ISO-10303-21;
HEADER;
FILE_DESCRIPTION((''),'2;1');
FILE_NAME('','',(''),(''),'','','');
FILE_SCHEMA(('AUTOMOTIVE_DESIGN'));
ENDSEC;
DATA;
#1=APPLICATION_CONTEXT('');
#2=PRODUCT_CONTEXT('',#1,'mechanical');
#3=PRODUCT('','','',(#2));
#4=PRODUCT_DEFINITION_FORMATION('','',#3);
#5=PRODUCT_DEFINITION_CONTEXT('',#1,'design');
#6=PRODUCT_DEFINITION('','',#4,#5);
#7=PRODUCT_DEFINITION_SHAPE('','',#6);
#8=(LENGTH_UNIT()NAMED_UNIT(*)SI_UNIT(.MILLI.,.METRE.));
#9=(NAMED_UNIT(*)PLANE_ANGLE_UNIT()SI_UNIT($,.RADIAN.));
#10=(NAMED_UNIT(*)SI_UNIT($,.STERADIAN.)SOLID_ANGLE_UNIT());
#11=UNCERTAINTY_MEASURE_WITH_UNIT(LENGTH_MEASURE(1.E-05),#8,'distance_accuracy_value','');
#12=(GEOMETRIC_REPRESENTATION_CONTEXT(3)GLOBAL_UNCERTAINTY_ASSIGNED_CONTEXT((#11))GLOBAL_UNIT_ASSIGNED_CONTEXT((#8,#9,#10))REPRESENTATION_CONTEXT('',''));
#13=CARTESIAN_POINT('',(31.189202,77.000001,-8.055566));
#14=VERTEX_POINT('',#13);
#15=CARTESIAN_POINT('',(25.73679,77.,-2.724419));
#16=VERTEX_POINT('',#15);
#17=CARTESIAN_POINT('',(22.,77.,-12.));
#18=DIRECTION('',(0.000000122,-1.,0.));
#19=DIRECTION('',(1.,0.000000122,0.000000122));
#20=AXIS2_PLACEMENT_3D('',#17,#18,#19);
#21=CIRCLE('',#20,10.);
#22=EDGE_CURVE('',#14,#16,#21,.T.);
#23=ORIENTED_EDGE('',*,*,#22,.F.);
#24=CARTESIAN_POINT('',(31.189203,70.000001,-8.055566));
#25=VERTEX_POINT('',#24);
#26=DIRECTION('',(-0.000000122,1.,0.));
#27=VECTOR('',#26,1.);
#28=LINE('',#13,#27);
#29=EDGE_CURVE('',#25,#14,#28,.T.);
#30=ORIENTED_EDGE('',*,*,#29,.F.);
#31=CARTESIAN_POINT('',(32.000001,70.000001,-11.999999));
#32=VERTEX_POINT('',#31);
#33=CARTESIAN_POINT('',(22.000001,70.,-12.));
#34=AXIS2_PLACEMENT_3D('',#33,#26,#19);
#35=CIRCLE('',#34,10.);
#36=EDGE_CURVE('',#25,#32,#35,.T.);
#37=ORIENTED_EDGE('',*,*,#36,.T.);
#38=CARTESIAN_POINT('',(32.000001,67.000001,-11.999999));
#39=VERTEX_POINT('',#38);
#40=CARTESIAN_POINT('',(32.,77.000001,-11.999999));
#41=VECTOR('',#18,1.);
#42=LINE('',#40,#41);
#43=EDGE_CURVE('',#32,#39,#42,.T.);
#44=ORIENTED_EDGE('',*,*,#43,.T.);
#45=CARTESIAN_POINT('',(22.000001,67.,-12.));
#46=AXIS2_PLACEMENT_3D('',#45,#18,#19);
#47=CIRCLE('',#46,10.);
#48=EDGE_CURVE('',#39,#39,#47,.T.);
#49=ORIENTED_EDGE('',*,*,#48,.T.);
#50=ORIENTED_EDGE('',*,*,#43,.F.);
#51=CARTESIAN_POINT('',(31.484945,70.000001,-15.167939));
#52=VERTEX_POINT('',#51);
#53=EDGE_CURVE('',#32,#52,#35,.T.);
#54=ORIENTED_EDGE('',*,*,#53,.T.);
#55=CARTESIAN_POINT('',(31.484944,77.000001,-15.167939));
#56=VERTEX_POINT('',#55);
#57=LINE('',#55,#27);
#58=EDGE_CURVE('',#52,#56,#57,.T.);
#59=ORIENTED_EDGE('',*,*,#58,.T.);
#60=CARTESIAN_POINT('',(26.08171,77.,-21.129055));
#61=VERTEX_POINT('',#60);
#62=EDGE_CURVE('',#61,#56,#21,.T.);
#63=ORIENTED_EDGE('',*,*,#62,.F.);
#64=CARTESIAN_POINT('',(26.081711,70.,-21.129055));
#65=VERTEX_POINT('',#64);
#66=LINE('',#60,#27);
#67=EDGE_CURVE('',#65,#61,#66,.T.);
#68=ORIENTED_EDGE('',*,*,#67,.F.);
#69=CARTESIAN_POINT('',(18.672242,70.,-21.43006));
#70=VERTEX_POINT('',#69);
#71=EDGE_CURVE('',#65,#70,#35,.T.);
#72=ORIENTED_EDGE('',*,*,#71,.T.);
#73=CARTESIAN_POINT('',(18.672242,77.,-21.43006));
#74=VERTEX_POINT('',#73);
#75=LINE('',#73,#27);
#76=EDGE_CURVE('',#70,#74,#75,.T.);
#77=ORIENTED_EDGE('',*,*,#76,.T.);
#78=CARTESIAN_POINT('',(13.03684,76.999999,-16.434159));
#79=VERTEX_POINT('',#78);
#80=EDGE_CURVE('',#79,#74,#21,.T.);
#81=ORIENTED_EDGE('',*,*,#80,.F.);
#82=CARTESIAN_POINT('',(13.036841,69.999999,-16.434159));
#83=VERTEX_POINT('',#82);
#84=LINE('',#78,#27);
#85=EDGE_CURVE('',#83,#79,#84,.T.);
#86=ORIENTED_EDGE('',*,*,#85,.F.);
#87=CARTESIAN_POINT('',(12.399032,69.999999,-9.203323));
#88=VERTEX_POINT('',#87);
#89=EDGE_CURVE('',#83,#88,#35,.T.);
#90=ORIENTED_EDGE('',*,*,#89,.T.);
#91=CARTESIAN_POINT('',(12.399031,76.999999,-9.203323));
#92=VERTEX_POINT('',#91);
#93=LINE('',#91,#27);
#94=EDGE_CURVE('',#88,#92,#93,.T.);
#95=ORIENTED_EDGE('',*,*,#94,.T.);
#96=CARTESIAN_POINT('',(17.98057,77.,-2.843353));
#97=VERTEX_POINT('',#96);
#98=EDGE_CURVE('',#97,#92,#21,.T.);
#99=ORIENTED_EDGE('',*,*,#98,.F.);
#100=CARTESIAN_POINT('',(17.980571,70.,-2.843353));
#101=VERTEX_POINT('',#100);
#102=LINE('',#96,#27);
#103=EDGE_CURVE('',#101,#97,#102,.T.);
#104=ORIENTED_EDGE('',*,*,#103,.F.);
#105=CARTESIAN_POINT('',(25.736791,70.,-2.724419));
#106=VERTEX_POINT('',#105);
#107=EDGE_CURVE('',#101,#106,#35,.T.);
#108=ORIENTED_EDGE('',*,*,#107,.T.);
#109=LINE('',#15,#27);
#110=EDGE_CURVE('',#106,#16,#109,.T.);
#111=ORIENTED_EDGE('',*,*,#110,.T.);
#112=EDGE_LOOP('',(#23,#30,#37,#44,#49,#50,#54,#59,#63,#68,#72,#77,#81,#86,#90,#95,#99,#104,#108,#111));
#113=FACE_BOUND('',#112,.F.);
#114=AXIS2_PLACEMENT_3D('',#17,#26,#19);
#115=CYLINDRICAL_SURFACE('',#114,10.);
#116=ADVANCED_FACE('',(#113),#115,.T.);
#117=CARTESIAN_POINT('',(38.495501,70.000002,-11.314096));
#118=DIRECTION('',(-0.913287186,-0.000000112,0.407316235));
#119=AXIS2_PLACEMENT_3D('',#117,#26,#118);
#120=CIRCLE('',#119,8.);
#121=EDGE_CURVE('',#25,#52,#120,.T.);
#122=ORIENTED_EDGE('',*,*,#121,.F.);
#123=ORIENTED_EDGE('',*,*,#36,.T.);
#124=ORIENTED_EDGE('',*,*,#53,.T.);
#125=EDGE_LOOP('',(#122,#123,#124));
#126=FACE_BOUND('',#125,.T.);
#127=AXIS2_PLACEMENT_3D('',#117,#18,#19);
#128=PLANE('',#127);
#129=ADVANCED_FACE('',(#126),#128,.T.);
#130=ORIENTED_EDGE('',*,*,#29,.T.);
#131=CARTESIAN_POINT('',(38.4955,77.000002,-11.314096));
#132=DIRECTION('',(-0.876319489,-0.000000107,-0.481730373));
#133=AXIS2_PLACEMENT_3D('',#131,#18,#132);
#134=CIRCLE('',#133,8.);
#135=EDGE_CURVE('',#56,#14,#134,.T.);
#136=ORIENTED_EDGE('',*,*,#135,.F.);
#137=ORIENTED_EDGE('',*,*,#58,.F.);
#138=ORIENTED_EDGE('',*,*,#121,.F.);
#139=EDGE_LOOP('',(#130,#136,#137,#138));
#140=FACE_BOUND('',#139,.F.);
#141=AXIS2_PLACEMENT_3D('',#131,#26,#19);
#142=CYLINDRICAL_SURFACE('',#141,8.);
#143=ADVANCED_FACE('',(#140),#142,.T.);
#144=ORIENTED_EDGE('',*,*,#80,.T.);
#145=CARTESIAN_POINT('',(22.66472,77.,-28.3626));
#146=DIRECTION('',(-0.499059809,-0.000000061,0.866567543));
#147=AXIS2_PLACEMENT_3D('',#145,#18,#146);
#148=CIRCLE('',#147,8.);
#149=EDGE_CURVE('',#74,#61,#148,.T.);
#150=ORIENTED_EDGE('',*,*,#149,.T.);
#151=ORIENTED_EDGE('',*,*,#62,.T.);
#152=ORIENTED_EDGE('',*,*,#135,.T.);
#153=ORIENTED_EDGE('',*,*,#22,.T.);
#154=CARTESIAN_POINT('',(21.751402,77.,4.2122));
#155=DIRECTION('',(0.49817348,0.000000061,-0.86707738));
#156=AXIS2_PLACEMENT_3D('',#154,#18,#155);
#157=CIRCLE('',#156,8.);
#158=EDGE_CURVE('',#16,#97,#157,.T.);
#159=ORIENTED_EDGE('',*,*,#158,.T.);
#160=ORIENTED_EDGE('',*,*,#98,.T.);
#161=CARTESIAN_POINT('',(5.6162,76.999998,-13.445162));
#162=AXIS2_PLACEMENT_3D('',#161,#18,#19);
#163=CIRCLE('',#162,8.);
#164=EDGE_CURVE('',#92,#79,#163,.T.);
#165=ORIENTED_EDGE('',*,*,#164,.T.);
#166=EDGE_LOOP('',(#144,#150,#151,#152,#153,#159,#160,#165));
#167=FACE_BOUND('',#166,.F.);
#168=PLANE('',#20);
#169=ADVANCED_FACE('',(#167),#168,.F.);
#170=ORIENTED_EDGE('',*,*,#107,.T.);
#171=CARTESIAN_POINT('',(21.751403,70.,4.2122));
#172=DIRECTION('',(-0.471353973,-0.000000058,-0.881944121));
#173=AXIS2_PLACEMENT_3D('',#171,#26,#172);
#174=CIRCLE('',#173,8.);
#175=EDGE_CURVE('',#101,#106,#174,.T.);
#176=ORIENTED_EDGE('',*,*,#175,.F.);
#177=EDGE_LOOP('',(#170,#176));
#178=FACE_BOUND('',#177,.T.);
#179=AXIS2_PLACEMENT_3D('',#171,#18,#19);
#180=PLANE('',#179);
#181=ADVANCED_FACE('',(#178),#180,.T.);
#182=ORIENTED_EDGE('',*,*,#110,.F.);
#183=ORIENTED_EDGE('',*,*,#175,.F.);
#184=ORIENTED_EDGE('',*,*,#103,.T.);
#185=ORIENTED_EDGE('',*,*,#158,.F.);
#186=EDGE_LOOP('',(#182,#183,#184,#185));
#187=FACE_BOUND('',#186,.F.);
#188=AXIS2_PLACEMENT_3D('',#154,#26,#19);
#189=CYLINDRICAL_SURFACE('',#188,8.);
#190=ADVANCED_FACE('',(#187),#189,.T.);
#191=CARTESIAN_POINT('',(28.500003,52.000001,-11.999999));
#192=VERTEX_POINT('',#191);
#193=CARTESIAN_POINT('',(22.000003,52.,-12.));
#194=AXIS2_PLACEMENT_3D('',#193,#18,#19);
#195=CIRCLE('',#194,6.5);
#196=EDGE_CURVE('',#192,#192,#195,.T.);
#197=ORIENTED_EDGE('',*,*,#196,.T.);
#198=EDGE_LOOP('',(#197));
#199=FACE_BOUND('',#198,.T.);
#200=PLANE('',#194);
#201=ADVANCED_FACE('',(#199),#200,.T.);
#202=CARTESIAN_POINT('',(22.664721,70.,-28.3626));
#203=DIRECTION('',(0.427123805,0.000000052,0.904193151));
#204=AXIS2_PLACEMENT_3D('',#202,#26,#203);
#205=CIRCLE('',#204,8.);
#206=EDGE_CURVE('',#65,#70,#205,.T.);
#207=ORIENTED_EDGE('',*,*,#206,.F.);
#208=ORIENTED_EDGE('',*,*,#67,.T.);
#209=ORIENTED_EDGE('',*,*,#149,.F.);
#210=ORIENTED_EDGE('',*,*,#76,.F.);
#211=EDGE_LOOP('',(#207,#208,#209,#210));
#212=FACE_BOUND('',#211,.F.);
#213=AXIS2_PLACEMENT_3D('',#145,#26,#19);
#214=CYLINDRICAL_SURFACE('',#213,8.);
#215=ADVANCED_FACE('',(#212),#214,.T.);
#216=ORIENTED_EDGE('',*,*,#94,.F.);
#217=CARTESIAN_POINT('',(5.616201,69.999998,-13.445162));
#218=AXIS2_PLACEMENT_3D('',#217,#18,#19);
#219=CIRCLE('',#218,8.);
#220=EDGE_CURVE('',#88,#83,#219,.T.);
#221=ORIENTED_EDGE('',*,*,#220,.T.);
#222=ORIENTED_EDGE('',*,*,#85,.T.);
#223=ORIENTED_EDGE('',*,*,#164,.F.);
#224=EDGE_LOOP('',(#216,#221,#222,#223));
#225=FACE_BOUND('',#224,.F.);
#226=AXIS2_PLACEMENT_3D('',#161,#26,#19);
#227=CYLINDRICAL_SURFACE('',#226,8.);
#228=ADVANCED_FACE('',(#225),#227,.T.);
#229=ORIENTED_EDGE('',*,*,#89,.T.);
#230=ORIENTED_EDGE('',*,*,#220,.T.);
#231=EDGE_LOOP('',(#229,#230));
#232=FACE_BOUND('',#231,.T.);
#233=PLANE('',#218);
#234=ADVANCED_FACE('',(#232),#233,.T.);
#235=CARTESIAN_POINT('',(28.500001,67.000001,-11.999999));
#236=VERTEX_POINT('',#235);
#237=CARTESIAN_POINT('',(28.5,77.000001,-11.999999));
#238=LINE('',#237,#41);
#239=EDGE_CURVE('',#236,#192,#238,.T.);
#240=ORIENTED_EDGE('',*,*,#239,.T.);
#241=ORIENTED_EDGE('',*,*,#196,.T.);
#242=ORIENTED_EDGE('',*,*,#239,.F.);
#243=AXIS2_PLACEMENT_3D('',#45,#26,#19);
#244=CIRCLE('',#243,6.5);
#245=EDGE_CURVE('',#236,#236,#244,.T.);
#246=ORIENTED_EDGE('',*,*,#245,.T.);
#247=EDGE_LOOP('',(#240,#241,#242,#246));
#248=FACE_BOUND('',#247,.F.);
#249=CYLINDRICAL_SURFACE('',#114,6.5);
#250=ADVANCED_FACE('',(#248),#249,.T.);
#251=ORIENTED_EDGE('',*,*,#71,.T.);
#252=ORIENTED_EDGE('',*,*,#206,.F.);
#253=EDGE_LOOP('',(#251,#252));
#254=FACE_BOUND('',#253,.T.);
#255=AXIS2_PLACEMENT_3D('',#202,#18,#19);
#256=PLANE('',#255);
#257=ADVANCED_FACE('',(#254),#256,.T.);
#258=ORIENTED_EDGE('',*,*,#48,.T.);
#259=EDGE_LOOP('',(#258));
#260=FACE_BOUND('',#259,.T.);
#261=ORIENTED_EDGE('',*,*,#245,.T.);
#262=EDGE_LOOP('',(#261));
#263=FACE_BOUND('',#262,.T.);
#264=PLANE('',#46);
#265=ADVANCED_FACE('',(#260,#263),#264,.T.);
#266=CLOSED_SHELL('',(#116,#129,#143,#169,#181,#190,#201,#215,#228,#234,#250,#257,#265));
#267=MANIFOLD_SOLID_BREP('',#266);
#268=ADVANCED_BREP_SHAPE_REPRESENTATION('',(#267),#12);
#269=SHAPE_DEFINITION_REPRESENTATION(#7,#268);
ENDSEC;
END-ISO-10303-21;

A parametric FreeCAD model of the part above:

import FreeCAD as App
import Part
import Sketcher

V = App.Vector

doc = App.newDocument("Part")
body = doc.addObject("PartDesign::Body", "Body")

sketch1 = body.newObject("Sketcher::SketchObject", "Sketch")
sketch1.AttachmentSupport = (doc.getObject("XY_Plane"), [""])
sketch1.MapMode = "FlatFace"
sketch1.addGeometry(Part.Circle(V(16, 1, 0), V(0, 0, 1), 8), False)
sketch1.addConstraint([
    Sketcher.Constraint("Diameter", 0, 16.0),
    Sketcher.Constraint("DistanceX", -1, 1, 0, 3, 16.4955),
    Sketcher.Constraint("DistanceY", -1, 1, 0, 3, 0.685902),
])
pad1 = body.newObject("PartDesign::Pad", "Pad")
pad1.Profile = sketch1
pad1.Length = 7
body2 = doc.addObject("PartDesign::Body", "Body001")

sketch2 = body2.newObject("Sketcher::SketchObject", "Sketch001")
sketch2.AttachmentSupport = (doc.getObject("XY_Plane001"), [""])
sketch2.MapMode = "FlatFace"
sketch2.addGeometry(Part.Circle(V(-16, -1, 0), V(0, 0, 1), 8), False)
sketch2.addConstraint([
    Sketcher.Constraint("Diameter", 0, 16.0),
    Sketcher.Constraint("DistanceX", 0, 3, -1, 1, 16.3838),
    Sketcher.Constraint("DistanceY", 0, 3, -1, 1, 1.44516),
])
pad2 = body2.newObject("PartDesign::Pad", "Pad001")
pad2.Profile = sketch2
pad2.Length = 7
body3 = doc.addObject("PartDesign::Body", "Body002")

sketch3 = body3.newObject("Sketcher::SketchObject", "Sketch002")
sketch3.AttachmentSupport = (doc.getObject("XY_Plane002"), [""])
sketch3.MapMode = "FlatFace"
sketch3.addGeometry(Part.Circle(V(1, -16, 0), V(0, 0, 1), 8), False)
sketch3.addConstraint([
    Sketcher.Constraint("Diameter", 0, 16.0),
    Sketcher.Constraint("DistanceY", 0, 3, -1, 1, 16.3626),
    Sketcher.Constraint("DistanceX", -1, 1, 0, 3, 0.664718),
])
pad3 = body3.newObject("PartDesign::Pad", "Pad002")
pad3.Profile = sketch3
pad3.Length = 7
body4 = doc.addObject("PartDesign::Body", "Body003")

sketch4 = body4.newObject("Sketcher::SketchObject", "Sketch003")
sketch4.AttachmentSupport = (doc.getObject("XY_Plane003"), [""])
sketch4.MapMode = "FlatFace"
sketch4.addGeometry(Part.Circle(V(0, 16, 0), V(0, 0, 1), 8), False)
sketch4.addConstraint([
    Sketcher.Constraint("Diameter", 0, 16.0),
    Sketcher.Constraint("DistanceY", -1, 1, 0, 3, 16.2122),
    Sketcher.Constraint("DistanceX", 0, 3, -1, 1, 0.248596),
])
pad4 = body4.newObject("PartDesign::Pad", "Pad003")
pad4.Profile = sketch4
pad4.Length = 7
body5 = doc.addObject("PartDesign::Body", "Body004")

sketch5 = body5.newObject("Sketcher::SketchObject", "Sketch004")
sketch5.AttachmentSupport = (doc.getObject("XY_Plane004"), [""])
sketch5.MapMode = "FlatFace"
sketch5.addGeometry(Part.Circle(V(0, 0, 0), V(0, 0, 1), 6), False)
sketch5.addConstraint([
    Sketcher.Constraint("Coincident", 0, 3, -1, 1),
    Sketcher.Constraint("Diameter", 0, 13.0),
])
pad5 = body5.newObject("PartDesign::Pad", "Pad004")
pad5.Profile = sketch5
pad5.Length = 25
body6 = doc.addObject("PartDesign::Body", "Body005")

sketch6 = body6.newObject("Sketcher::SketchObject", "Sketch005")
sketch6.AttachmentSupport = (doc.getObject("XY_Plane005"), [""])
sketch6.MapMode = "FlatFace"
sketch6.addGeometry(Part.Circle(V(0, 0, 0), V(0, 0, 1), 10), False)
sketch6.addConstraint([
    Sketcher.Constraint("Coincident", 0, 3, -1, 1),
    Sketcher.Constraint("Diameter", 0, 20.0),
])
pad6 = body6.newObject("PartDesign::Pad", "Pad005")
pad6.Profile = sketch6
pad6.Length = 10
doc.recompute()

boolean = body6.newObject("PartDesign::Boolean", "Boolean")
boolean.Type = "Fuse"
boolean.addObjects([body])
doc.recompute()

boolean2 = body6.newObject("PartDesign::Boolean", "Boolean001")
boolean2.Type = "Fuse"
boolean2.addObjects([body2])
doc.recompute()

boolean3 = body6.newObject("PartDesign::Boolean", "Boolean002")
boolean3.Type = "Fuse"
boolean3.addObjects([body3])
doc.recompute()

boolean4 = body6.newObject("PartDesign::Boolean", "Boolean003")
boolean4.Type = "Fuse"
boolean4.addObjects([body4])
doc.recompute()

boolean5 = body6.newObject("PartDesign::Boolean", "Boolean004")
boolean5.Type = "Fuse"
boolean5.addObjects([body5])
body7 = doc.addObject("PartDesign::Body", "Body006")
doc.recompute()

body6.Placement = App.Placement(V(0, 0, 0), App.Rotation(V(1, 0, 0), 90))
boolean6 = body7.newObject("PartDesign::Boolean", "Boolean005")
boolean6.Type = "Fuse"
boolean6.addObjects([body6])
body8 = doc.addObject("PartDesign::Body", "Body007")
doc.recompute()

body7.Placement = App.Placement(V(0, 0, 0), App.Rotation(V(0, 1, 0), 359.999993))
boolean7 = body8.newObject("PartDesign::Boolean", "Boolean006")
boolean7.Type = "Fuse"
boolean7.addObjects([body7])
body9 = doc.addObject("PartDesign::Body", "Body008")
doc.recompute()

body8.Placement = App.Placement(V(22, 77, -12), App.Rotation(V(0, 0, 1), 0.000007))
boolean8 = body9.newObject("PartDesign::Boolean", "Boolean007")
boolean8.Type = "Fuse"
boolean8.addObjects([body8])

doc.recompute()
